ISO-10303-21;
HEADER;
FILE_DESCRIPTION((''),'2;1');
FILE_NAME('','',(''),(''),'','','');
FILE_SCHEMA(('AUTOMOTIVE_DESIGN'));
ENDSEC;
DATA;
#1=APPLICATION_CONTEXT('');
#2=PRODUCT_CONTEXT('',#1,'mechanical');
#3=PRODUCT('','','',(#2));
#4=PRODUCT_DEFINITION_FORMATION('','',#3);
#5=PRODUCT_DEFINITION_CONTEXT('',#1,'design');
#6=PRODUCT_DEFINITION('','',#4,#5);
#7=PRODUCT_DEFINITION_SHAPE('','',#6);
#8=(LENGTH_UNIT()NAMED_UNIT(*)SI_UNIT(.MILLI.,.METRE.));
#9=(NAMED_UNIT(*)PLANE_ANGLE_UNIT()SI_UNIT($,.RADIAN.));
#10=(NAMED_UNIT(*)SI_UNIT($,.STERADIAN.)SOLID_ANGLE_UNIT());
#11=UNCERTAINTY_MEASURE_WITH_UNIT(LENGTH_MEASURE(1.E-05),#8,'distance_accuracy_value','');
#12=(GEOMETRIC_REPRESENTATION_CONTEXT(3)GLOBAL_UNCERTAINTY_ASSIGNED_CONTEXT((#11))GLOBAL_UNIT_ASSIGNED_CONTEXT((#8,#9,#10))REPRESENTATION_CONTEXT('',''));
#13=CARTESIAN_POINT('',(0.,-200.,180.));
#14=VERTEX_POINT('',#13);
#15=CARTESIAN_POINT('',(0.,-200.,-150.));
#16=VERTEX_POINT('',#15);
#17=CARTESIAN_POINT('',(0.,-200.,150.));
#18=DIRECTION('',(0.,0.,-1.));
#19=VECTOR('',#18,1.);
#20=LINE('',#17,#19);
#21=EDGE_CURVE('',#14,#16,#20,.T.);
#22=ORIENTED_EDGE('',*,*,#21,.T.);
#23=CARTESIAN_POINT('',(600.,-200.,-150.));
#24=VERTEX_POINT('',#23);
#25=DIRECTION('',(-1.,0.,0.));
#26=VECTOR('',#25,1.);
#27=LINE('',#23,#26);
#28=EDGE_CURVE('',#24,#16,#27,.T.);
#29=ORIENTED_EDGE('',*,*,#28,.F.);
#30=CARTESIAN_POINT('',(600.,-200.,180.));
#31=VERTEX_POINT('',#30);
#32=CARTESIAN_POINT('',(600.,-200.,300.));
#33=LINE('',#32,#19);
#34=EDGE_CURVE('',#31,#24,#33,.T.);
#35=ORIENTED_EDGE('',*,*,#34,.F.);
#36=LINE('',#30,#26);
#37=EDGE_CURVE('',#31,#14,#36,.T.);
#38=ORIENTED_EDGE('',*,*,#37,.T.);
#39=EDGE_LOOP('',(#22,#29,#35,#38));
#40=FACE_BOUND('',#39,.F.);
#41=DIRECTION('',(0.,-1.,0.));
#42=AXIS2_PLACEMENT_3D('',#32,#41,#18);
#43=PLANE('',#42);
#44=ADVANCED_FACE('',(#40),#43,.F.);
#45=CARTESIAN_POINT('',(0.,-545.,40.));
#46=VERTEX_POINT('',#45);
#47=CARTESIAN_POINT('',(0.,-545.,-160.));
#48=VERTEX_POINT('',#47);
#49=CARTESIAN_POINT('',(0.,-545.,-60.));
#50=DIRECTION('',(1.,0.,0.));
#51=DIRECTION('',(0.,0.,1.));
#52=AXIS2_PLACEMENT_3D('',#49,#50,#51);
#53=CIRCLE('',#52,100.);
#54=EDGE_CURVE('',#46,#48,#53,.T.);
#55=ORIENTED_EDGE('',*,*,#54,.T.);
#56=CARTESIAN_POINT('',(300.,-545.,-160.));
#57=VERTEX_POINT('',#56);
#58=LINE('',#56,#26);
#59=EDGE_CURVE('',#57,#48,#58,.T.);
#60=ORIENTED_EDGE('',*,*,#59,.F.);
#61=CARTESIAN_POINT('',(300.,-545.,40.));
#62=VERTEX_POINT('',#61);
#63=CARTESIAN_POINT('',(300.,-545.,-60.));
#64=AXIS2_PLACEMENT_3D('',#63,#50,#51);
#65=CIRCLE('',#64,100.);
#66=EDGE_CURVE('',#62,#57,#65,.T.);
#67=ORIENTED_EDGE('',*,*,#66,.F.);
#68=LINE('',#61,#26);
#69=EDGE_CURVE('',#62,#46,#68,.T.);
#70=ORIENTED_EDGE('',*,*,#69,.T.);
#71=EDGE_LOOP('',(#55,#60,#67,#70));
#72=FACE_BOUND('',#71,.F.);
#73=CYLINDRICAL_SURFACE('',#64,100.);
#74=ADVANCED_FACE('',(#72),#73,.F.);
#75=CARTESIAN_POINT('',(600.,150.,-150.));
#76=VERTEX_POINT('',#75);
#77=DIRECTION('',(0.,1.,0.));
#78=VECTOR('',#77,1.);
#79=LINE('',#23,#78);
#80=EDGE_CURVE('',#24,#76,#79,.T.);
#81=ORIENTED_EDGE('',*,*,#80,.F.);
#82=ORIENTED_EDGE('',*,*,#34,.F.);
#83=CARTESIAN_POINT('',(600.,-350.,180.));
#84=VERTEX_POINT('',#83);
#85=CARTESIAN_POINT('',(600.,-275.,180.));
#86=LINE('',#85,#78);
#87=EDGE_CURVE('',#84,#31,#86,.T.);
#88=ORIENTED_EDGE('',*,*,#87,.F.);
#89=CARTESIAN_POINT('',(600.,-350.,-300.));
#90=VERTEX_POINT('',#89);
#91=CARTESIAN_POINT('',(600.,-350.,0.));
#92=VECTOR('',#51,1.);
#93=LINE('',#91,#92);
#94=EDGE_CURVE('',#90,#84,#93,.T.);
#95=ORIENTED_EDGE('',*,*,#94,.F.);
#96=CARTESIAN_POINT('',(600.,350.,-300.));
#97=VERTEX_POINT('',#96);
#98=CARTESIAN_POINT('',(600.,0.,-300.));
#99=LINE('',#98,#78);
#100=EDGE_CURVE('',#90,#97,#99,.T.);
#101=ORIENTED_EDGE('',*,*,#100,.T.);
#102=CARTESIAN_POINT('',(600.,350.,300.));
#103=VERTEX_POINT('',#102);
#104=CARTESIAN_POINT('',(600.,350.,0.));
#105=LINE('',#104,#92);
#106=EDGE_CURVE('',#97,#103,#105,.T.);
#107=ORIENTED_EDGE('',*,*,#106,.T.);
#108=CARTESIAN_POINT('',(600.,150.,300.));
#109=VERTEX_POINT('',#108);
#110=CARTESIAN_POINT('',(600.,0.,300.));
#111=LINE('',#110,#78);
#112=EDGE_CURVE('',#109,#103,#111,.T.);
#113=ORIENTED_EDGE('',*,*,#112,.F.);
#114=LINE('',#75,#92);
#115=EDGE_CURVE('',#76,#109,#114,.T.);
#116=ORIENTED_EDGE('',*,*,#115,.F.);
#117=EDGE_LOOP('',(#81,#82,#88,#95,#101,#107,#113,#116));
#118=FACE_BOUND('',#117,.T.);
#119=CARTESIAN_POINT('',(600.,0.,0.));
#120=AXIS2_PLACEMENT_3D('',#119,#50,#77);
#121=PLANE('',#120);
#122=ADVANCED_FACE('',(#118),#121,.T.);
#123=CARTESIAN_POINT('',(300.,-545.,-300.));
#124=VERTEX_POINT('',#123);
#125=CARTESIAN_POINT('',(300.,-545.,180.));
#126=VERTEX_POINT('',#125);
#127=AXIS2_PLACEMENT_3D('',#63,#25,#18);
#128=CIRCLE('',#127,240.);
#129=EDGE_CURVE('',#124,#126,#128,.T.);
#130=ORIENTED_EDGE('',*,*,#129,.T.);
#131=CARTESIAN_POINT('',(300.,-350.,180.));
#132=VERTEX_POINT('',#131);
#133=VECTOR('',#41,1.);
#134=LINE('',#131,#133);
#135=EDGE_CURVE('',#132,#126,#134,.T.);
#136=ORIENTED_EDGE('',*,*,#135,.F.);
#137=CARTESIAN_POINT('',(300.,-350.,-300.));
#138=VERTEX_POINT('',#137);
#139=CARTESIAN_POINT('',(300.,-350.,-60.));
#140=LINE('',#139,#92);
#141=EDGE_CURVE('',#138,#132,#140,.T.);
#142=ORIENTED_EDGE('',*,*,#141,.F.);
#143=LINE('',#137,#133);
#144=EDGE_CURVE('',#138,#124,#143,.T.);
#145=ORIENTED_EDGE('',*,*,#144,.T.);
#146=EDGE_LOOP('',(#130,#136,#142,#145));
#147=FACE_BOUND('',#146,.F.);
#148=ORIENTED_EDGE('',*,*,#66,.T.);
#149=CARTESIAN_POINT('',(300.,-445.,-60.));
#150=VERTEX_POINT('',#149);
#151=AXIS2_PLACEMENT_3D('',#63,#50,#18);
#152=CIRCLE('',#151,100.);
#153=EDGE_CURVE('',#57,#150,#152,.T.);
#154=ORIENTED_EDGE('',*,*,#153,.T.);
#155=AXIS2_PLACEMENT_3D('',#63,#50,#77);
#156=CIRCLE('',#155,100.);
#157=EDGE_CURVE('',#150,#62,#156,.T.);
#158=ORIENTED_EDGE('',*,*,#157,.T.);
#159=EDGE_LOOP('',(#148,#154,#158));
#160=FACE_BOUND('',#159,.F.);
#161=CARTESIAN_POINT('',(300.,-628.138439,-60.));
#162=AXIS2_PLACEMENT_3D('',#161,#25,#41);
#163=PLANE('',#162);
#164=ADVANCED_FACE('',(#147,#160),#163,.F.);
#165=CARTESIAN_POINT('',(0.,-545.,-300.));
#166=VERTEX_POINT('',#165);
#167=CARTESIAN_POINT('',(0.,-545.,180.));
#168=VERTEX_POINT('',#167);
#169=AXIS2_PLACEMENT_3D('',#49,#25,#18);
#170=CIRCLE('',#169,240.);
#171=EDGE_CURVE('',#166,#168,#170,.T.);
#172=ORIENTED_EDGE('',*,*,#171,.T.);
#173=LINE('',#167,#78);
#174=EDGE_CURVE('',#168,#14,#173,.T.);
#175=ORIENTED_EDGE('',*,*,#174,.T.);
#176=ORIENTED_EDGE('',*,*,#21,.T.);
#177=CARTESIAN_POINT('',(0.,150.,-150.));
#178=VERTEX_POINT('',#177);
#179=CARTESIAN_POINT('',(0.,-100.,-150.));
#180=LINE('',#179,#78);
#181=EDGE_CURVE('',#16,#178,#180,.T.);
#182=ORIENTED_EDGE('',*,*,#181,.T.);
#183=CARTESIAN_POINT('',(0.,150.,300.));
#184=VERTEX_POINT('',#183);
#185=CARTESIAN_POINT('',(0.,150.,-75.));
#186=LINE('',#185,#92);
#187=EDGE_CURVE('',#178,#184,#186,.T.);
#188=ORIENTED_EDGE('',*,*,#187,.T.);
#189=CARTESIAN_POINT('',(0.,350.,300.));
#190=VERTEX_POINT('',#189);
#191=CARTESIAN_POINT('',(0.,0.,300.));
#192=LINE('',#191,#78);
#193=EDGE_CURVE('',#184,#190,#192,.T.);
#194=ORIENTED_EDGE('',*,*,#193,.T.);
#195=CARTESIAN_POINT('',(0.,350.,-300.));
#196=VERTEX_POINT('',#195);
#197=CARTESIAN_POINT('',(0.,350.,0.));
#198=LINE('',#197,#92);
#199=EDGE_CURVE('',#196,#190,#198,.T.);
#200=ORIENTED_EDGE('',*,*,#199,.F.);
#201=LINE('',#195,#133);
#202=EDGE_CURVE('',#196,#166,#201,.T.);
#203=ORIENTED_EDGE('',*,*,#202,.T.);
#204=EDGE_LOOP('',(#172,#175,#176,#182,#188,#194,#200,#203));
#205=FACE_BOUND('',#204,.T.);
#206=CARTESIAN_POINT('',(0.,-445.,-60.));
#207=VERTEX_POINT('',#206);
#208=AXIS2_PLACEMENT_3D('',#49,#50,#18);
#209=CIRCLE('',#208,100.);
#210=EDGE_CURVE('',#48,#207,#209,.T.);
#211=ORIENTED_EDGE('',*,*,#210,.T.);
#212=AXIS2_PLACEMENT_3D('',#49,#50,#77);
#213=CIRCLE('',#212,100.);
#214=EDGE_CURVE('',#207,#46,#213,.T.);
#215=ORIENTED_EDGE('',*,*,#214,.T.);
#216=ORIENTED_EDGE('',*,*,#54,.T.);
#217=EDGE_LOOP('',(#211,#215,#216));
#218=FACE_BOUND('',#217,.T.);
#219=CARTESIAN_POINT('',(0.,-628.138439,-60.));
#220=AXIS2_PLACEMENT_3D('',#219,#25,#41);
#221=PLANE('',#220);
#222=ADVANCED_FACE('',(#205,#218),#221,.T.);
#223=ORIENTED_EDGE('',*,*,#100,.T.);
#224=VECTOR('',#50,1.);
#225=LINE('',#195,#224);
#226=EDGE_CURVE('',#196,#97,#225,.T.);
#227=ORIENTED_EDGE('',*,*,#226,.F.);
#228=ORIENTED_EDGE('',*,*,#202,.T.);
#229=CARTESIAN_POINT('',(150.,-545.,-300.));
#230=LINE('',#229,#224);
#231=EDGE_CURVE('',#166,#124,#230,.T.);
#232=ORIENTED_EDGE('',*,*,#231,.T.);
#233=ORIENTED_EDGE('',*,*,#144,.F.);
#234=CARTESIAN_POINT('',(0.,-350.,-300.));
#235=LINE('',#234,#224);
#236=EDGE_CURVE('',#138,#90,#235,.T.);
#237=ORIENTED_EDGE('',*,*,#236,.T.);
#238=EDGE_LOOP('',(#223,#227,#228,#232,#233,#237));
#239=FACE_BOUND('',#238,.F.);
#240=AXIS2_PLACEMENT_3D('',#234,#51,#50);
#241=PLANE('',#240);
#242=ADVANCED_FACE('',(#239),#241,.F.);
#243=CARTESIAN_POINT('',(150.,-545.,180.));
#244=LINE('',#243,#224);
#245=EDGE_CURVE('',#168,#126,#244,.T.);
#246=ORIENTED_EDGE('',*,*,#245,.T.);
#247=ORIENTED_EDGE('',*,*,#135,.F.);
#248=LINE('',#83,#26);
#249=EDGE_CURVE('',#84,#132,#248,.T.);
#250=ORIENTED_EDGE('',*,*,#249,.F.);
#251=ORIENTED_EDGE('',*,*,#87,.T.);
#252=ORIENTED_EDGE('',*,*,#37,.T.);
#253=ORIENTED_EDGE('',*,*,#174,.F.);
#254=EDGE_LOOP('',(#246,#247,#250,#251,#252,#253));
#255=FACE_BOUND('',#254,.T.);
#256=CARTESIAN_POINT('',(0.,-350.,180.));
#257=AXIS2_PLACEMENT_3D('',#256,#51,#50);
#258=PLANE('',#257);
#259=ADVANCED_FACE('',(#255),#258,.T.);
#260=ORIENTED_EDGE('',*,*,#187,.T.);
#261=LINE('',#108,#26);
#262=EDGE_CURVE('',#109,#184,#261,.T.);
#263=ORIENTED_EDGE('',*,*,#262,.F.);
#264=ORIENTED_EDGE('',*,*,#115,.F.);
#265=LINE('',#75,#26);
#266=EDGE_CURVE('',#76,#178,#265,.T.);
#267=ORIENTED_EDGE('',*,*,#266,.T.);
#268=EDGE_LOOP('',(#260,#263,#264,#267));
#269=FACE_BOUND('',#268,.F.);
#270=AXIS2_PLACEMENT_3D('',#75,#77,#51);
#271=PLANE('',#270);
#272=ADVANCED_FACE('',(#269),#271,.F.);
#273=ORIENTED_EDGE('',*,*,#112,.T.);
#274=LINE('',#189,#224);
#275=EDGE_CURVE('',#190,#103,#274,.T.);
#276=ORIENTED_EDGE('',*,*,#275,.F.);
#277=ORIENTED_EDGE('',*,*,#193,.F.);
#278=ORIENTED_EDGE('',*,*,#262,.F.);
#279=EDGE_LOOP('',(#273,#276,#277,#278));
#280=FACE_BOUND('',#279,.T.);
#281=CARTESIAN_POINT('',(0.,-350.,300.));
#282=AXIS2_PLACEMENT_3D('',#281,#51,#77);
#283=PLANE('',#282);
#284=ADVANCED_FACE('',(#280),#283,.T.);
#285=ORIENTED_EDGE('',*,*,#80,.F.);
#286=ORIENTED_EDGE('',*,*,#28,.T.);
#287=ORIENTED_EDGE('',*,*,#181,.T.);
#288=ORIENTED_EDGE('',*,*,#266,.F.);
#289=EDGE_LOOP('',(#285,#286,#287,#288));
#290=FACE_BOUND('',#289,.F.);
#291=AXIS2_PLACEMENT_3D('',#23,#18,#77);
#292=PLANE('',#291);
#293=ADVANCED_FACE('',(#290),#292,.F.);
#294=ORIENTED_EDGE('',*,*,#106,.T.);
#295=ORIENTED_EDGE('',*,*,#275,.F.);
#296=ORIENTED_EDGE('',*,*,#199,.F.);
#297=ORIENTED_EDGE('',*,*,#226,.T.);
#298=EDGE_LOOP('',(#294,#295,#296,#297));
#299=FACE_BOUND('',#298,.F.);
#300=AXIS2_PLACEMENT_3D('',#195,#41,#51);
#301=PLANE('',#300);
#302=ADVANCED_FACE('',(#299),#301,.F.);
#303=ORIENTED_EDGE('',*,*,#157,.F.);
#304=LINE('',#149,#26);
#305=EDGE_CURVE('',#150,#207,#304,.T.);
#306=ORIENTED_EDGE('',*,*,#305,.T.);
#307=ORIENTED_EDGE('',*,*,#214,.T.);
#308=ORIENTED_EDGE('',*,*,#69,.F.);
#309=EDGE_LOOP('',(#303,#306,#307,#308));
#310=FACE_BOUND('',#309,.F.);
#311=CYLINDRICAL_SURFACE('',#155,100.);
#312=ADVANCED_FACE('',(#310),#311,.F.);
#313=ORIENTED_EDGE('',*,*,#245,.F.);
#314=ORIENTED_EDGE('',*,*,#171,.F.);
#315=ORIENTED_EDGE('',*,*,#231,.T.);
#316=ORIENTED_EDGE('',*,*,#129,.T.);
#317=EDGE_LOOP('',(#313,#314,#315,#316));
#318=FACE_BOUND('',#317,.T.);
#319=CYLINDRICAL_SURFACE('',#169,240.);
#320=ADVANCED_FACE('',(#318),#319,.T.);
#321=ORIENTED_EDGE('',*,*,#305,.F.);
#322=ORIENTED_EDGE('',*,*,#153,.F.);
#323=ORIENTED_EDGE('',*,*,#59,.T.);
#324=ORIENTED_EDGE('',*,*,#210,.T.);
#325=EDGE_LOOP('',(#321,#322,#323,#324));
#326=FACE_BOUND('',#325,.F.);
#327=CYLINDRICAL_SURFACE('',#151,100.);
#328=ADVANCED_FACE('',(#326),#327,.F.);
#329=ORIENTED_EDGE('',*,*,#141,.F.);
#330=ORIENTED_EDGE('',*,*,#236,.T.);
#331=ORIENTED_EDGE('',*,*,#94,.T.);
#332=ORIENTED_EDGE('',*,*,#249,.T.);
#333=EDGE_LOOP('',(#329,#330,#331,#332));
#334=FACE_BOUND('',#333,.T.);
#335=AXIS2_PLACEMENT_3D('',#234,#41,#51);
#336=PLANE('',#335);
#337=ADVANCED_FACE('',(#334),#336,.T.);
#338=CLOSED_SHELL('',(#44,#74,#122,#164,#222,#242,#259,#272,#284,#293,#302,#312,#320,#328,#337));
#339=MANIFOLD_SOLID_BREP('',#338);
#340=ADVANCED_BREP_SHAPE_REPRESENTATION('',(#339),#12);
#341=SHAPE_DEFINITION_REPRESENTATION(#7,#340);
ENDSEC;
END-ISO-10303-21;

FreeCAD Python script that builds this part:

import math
import FreeCAD as App
import Part
import Sketcher

V = App.Vector

doc = App.newDocument("Part")
body = doc.addObject("PartDesign::Body", "Body")

sketch1 = body.newObject("Sketcher::SketchObject", "Sketch")
sketch1.AttachmentSupport = (doc.getObject("YZ_Plane"), [""])
sketch1.MapMode = "FlatFace"
sketch1.addGeometry([
    Part.LineSegment(V(-350, 300, 0), V(-350, -300, 0)),
    Part.LineSegment(V(-350, -300, 0), V(350, -300, 0)),
    Part.LineSegment(V(350, -300, 0), V(350, 300, 0)),
    Part.LineSegment(V(350, 300, 0), V(-350, 300, 0)),
], False)
sketch1.addConstraint([
    Sketcher.Constraint("Coincident", 0, 2, 1, 1),
    Sketcher.Constraint("Coincident", 1, 2, 2, 1),
    Sketcher.Constraint("Coincident", 2, 2, 3, 1),
    Sketcher.Constraint("Coincident", 3, 2, 0, 1),
    Sketcher.Constraint("Vertical", 0),
    Sketcher.Constraint("Horizontal", 1),
    Sketcher.Constraint("Vertical", 2),
    Sketcher.Constraint("Horizontal", 3),
    Sketcher.Constraint("Symmetric", 0, 2, 2, 2, -1, 1),
    Sketcher.Constraint("DistanceX", 1, 1, 1, 2, 700.0),
    Sketcher.Constraint("DistanceY", 0, 2, 0, 1, 600.0),
])
pad1 = body.newObject("PartDesign::Pad", "Pad")
pad1.Profile = sketch1
pad1.Length = 600

sketch2 = body.newObject("Sketcher::SketchObject", "Sketch001")
sketch2.AttachmentSupport = (doc.getObject("YZ_Plane"), [""])
sketch2.MapMode = "FlatFace"
sketch2.AttachmentOffset = App.Placement(V(0, 0, 600), App.Rotation())
sketch2.addGeometry([
    Part.LineSegment(V(150, -150, 0), V(150, 300, 0)),
    Part.LineSegment(V(150, 300, 0), V(-200, 300, 0)),
    Part.LineSegment(V(-200, 300, 0), V(-200, -150, 0)),
    Part.LineSegment(V(-200, -150, 0), V(150, -150, 0)),
], False)
sketch2.addConstraint([
    Sketcher.Constraint("Coincident", 0, 2, 1, 1),
    Sketcher.Constraint("Coincident", 1, 2, 2, 1),
    Sketcher.Constraint("Coincident", 2, 2, 3, 1),
    Sketcher.Constraint("Coincident", 3, 2, 0, 1),
    Sketcher.Constraint("Vertical", 0),
    Sketcher.Constraint("Horizontal", 1),
    Sketcher.Constraint("Vertical", 2),
    Sketcher.Constraint("Horizontal", 3),
    Sketcher.Constraint("DistanceX", 1, 2, 1, 1, 350.0),
    Sketcher.Constraint("DistanceY", 0, 1, 0, 2, 450.0),
    Sketcher.Constraint("DistanceX", -1, 1, 0, 2, 150.0),
    Sketcher.Constraint("DistanceY", -1, 1, 0, 2, 300.0),
])
pocket1 = body.newObject("PartDesign::Pocket", "Pocket")
pocket1.Profile = sketch2
pocket1.Type = "ThroughAll"

sketch3 = body.newObject("Sketcher::SketchObject", "Sketch002")
sketch3.AttachmentSupport = (doc.getObject("YZ_Plane"), [""])
sketch3.MapMode = "FlatFace"
sketch3.AttachmentOffset = App.Placement(V(0, 0, 600), App.Rotation())
sketch3.addGeometry([
    Part.LineSegment(V(-350, 300, 0), V(-350, 180, 0)),
    Part.LineSegment(V(-350, 180, 0), V(-200, 180, 0)),
    Part.LineSegment(V(-200, 180, 0), V(-200, 300, 0)),
    Part.LineSegment(V(-200, 300, 0), V(-350, 300, 0)),
], False)
sketch3.addConstraint([
    Sketcher.Constraint("Coincident", 0, 2, 1, 1),
    Sketcher.Constraint("Coincident", 1, 2, 2, 1),
    Sketcher.Constraint("Coincident", 2, 2, 3, 1),
    Sketcher.Constraint("Coincident", 3, 2, 0, 1),
    Sketcher.Constraint("Vertical", 0),
    Sketcher.Constraint("Horizontal", 1),
    Sketcher.Constraint("Vertical", 2),
    Sketcher.Constraint("Horizontal", 3),
    Sketcher.Constraint("DistanceX", 1, 1, 1, 2, 150.0),
    Sketcher.Constraint("DistanceY", 0, 2, 0, 1, 120.0),
    Sketcher.Constraint("DistanceX", 0, 2, -1, 1, 350.0),
    Sketcher.Constraint("DistanceY", -1, 1, 0, 2, 180.0),
])
pocket2 = body.newObject("PartDesign::Pocket", "Pocket001")
pocket2.Profile = sketch3
pocket2.Type = "ThroughAll"

sketch4 = body.newObject("Sketcher::SketchObject", "Sketch003")
sketch4.AttachmentSupport = (doc.getObject("XZ_Plane"), [""])
sketch4.MapMode = "FlatFace"
sketch4.AttachmentOffset = App.Placement(V(0, 0, 350), App.Rotation())
sketch4.addGeometry([
    Part.LineSegment(V(0, 180, 0), V(0, -300, 0)),
    Part.LineSegment(V(0, -300, 0), V(300, -300, 0)),
    Part.LineSegment(V(300, -300, 0), V(300, 180, 0)),
    Part.LineSegment(V(300, 180, 0), V(0, 180, 0)),
], False)
sketch4.addConstraint([
    Sketcher.Constraint("Coincident", 0, 2, 1, 1),
    Sketcher.Constraint("Coincident", 1, 2, 2, 1),
    Sketcher.Constraint("Coincident", 2, 2, 3, 1),
    Sketcher.Constraint("Coincident", 3, 2, 0, 1),
    Sketcher.Constraint("Vertical", 0),
    Sketcher.Constraint("Horizontal", 1),
    Sketcher.Constraint("Vertical", 2),
    Sketcher.Constraint("Horizontal", 3),
    Sketcher.Constraint("PointOnObject", 0, 2, -2),
    Sketcher.Constraint("DistanceX", 1, 1, 1, 2, 300.0),
    Sketcher.Constraint("DistanceY", 0, 2, 0, 1, 480.0),
    Sketcher.Constraint("DistanceY", 0, 2, -1, 1, 300.0),
])
pad2 = body.newObject("PartDesign::Pad", "Pad001")
pad2.Profile = sketch4
pad2.Length = 195

sketch5 = body.newObject("Sketcher::SketchObject", "Sketch004")
sketch5.AttachmentSupport = (doc.getObject("YZ_Plane"), [""])
sketch5.MapMode = "FlatFace"
sketch5.addGeometry([
    Part.ArcOfCircle(Part.Circle(V(-545, -60, 0), V(0, 0, 1), 240), math.radians(90), math.radians(270)),
    Part.LineSegment(V(-545, 180, 0), V(-545, -300, 0)),
], False)
sketch5.addConstraint([
    Sketcher.Constraint("Coincident", 0, 1, 1, 1),
    Sketcher.Constraint("Coincident", 1, 2, 0, 2),
    Sketcher.Constraint("Vertical", 1),
    Sketcher.Constraint("Radius", 0, 240.0),
    Sketcher.Constraint("DistanceX", 0, 3, -1, 1, 545.0),
    Sketcher.Constraint("DistanceY", 0, 3, -1, 1, 60.0),
    Sketcher.Constraint("DistanceX", 0, 1, -1, 1, 545.0),
])
pad3 = body.newObject("PartDesign::Pad", "Pad002")
pad3.Profile = sketch5
pad3.Length = 300

sketch6 = body.newObject("Sketcher::SketchObject", "Sketch005")
sketch6.AttachmentSupport = (doc.getObject("YZ_Plane"), [""])
sketch6.MapMode = "FlatFace"
sketch6.AttachmentOffset = App.Placement(V(0, 0, 300), App.Rotation())
sketch6.addGeometry([
    Part.ArcOfCircle(Part.Circle(V(-545, -60, 0), V(0, 0, 1), 100), math.radians(0), math.radians(90)),
    Part.ArcOfCircle(Part.Circle(V(-545, -60, 0), V(0, 0, 1), 100), math.radians(90), math.radians(270)),
    Part.ArcOfCircle(Part.Circle(V(-545, -60, 0), V(0, 0, 1), 100), math.radians(-90), math.radians(0)),
], False)
sketch6.addConstraint([
    Sketcher.Constraint("Tangent", 0, 2, 1, 1),
    Sketcher.Constraint("Tangent", 1, 2, 2, 1),
    Sketcher.Constraint("Tangent", 2, 2, 0, 1),
    Sketcher.Constraint("Horizontal", 1, 3, 2, 2),
    Sketcher.Constraint("Vertical", 2, 3, 0, 2),
    Sketcher.Constraint("Vertical", 0, 2, 1, 2),
    Sketcher.Constraint("Radius", 0, 100.0),
    Sketcher.Constraint("DistanceX", 0, 3, -1, 1, 545.0),
    Sketcher.Constraint("DistanceY", 0, 3, -1, 1, 60.0),
])
pocket3 = body.newObject("PartDesign::Pocket", "Pocket002")
pocket3.Profile = sketch6
pocket3.Type = "ThroughAll"

doc.recompute()
